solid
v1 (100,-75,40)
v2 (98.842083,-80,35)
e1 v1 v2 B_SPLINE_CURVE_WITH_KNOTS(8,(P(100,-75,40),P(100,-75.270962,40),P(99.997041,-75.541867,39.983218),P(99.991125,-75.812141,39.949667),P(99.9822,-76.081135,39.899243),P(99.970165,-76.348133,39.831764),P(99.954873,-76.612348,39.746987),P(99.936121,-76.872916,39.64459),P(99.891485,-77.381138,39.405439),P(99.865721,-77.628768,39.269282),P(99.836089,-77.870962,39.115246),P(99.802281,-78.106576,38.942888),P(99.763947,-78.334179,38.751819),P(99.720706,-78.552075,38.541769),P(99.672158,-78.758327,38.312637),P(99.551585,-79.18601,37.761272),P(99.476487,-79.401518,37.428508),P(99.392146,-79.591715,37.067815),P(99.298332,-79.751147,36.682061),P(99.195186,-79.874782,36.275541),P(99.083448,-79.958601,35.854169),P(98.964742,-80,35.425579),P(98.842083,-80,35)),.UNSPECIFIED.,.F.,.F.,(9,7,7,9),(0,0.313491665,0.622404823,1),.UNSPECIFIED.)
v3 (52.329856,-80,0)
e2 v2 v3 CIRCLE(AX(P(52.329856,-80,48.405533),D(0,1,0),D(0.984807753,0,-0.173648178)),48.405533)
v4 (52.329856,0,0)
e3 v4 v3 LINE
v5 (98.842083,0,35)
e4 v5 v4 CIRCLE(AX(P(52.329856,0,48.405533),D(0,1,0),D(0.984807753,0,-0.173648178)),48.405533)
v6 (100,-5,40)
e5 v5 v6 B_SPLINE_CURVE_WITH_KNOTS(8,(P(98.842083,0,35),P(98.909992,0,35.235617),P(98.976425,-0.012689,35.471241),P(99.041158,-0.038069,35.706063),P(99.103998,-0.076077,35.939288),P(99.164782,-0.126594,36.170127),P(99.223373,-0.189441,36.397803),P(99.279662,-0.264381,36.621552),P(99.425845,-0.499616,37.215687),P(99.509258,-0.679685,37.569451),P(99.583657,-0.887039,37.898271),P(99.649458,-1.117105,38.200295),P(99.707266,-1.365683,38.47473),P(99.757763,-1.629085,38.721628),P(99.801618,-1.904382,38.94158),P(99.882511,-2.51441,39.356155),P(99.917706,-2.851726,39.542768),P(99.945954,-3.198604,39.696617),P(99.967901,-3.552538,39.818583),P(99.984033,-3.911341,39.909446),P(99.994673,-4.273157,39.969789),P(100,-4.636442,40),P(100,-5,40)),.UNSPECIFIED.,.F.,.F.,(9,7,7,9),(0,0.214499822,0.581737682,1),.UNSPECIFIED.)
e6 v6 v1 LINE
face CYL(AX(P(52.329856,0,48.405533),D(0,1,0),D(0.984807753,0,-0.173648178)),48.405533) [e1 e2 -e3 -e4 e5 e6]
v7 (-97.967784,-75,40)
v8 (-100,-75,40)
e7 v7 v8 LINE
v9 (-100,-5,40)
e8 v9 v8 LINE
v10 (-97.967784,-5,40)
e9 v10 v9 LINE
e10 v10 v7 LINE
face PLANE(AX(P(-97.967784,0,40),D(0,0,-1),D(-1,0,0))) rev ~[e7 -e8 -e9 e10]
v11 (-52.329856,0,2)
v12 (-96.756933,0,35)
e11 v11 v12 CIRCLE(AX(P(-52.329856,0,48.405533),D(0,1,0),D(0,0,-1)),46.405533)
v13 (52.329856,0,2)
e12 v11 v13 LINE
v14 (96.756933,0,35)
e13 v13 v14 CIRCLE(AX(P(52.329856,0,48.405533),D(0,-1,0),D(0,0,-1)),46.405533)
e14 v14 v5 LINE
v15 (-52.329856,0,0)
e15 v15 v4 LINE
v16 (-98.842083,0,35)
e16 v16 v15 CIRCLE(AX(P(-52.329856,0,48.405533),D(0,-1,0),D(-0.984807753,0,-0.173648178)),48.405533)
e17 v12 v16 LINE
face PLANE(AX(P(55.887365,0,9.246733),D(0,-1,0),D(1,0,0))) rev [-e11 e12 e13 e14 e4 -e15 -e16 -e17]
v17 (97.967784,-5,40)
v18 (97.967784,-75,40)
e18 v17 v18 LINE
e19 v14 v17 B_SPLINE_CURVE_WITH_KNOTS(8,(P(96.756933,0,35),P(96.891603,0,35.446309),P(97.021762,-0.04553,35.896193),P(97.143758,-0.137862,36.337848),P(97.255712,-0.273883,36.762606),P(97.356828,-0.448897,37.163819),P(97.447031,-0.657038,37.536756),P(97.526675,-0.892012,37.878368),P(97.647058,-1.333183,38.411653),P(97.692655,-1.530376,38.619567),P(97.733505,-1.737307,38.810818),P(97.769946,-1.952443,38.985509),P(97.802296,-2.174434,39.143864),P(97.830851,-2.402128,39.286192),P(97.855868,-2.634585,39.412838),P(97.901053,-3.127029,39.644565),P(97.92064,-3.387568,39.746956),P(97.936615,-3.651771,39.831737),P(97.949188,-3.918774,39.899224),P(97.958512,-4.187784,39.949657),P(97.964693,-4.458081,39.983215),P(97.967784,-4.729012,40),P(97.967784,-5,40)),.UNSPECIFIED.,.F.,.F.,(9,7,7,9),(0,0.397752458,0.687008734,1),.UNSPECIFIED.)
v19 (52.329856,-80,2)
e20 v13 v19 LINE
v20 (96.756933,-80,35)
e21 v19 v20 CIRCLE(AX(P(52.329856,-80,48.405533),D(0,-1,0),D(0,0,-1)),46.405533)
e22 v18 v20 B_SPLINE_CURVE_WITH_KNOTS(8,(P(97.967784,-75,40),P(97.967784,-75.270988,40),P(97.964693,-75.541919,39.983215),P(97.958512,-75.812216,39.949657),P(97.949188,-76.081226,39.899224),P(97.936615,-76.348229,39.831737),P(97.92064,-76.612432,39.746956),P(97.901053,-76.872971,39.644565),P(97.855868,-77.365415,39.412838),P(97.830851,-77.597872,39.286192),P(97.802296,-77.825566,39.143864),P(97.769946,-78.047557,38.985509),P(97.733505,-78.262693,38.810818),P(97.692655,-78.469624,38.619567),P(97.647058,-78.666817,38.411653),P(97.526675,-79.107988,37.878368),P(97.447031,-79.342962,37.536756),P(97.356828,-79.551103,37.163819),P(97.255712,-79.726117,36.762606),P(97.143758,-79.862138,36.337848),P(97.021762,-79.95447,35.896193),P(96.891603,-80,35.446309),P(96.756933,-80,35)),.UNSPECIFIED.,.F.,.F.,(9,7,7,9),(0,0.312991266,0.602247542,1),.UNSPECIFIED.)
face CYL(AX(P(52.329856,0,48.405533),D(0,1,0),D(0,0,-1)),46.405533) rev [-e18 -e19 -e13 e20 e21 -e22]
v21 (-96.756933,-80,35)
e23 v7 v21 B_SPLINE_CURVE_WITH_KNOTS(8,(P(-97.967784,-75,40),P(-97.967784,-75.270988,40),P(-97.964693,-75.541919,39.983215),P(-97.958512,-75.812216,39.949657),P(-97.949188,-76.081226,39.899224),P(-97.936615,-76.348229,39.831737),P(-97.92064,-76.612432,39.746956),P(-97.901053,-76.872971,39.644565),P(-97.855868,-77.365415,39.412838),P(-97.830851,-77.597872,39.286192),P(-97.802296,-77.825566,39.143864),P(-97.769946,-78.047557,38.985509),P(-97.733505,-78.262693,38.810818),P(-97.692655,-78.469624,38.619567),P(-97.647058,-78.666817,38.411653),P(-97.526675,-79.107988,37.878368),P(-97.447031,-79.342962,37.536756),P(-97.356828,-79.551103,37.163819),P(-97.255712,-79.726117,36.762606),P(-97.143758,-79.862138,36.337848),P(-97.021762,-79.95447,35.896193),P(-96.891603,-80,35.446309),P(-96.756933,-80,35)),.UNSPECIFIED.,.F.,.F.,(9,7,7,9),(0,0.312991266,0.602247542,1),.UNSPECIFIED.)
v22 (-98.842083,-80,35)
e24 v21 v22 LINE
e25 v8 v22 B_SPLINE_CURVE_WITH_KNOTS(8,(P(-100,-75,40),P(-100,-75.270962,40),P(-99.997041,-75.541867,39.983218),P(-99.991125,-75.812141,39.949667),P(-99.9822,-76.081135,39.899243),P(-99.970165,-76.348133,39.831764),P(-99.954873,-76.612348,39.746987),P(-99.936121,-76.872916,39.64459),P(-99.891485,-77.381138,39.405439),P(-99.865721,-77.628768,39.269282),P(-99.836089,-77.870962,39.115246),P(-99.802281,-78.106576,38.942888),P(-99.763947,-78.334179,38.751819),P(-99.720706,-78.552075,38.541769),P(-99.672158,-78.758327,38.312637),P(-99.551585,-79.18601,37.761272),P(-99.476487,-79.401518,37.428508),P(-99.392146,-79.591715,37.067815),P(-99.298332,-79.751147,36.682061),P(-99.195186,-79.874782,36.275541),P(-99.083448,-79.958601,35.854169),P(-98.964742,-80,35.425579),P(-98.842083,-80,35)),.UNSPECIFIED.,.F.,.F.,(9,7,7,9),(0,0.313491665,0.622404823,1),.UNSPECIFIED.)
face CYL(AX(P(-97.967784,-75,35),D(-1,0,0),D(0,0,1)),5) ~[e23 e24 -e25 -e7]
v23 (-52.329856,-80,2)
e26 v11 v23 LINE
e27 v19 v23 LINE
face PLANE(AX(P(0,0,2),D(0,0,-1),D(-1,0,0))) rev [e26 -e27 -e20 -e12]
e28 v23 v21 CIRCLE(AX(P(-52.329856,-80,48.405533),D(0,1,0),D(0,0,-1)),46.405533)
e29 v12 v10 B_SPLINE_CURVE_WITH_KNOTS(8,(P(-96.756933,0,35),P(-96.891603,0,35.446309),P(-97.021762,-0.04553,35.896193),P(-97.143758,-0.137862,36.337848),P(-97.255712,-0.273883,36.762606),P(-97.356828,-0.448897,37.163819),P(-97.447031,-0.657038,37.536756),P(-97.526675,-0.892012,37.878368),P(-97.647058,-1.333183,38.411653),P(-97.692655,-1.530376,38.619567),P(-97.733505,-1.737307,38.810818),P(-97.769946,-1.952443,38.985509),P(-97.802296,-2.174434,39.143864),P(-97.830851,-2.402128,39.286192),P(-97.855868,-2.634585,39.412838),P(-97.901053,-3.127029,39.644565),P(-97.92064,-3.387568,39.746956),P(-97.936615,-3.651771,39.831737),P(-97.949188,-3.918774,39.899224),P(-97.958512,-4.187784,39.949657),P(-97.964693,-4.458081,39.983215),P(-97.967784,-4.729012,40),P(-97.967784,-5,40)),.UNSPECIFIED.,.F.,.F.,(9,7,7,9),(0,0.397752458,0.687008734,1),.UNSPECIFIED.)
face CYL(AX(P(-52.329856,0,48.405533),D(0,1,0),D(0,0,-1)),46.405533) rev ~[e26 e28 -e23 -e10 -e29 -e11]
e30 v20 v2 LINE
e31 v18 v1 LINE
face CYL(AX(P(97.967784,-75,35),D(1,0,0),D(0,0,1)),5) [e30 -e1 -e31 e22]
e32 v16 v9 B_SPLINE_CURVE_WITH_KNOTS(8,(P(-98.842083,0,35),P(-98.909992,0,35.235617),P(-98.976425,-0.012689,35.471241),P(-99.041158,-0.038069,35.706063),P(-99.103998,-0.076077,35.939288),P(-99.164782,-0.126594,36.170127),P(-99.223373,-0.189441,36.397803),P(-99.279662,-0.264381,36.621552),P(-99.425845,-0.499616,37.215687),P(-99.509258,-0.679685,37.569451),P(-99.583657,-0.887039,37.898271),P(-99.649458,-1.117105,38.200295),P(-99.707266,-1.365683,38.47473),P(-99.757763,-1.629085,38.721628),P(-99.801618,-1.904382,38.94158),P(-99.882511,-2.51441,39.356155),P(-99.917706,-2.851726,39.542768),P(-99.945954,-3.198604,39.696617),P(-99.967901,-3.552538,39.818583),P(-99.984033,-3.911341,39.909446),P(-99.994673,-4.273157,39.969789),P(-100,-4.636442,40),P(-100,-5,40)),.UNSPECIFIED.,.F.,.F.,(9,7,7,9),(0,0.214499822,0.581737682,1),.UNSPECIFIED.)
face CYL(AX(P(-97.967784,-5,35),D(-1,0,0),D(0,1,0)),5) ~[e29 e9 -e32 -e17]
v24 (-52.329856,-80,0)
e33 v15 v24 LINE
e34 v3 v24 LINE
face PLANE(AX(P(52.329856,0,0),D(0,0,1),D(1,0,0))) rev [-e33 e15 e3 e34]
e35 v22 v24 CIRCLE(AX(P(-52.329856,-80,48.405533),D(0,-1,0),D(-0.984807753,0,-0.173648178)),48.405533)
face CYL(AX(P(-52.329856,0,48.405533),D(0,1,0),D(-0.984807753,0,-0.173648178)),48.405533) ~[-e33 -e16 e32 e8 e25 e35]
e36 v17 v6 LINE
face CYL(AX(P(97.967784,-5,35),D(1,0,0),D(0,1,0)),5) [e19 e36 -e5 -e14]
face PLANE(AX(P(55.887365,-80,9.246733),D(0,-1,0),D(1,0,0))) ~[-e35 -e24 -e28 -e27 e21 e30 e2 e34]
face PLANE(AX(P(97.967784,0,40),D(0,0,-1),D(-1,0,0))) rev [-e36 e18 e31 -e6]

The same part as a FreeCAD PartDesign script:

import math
import FreeCAD as App
import Part
import Sketcher

V = App.Vector
Q = App.Units.Quantity


def edges_at(feature, points):
    """Names of the edges that pass closest to the given points."""
    edges = feature.Shape.Edges
    near = lambda p: min(range(len(edges)), key=lambda i: edges[i].distToShape(Part.Vertex(*p))[0])
    return sorted({f"Edge{near(p) + 1}" for p in points})

doc = App.newDocument("Part")
params = doc.addObject("Spreadsheet::Sheet", "Params")
for row, (alias, value) in enumerate([
    ("sketch1_height", "2 mm"),
    ("pad1_length", "80 mm"),
    ("fillet_radius", "5 mm"),
], start=1):
    params.set(f"A{row}", alias)
    params.set(f"B{row}", "=" + value)
    params.setAlias(f"B{row}", alias)

body = doc.addObject("PartDesign::Body", "Body")

# Sketch on XZ plane
sketch1 = body.newObject("Sketcher::SketchObject", "Sketch")
sketch1.AttachmentSupport = (doc.getObject("XZ_Plane"), [""])
sketch1.MapMode = "FlatFace"
sketch1.addGeometry([
    Part.LineSegment(V(-52.329856, 0, 0), V(0, 0, 0)),  # 0
    Part.LineSegment(V(0, 0, 0), V(0, 2, 0)),  # 1
    Part.LineSegment(V(0, 2, 0), V(-52.329856, 2, 0)),  # 2
    Part.ArcOfCircle(Part.Circle(V(-52.329856, 48.405533, 0), V(0, 0, 1), 46.405533), math.radians(-169.56429), math.radians(-90)),  # 3
    Part.LineSegment(V(-97.967784, 40, 0), V(-100, 40, 0)),  # 4
    Part.ArcOfCircle(Part.Circle(V(-52.329856, 48.405533, 0), V(0, 0, 1), 48.405533), math.radians(-170), math.radians(-90)),  # 5
], False)
sketch1.addConstraint([
    Sketcher.Constraint("Coincident", 0, 2, 1, 1),
    Sketcher.Constraint("Coincident", 1, 2, 2, 1),
    Sketcher.Constraint("Tangent", 2, 2, 3, 2),
    Sketcher.Constraint("Coincident", 3, 1, 4, 1),
    Sketcher.Constraint("Coincident", 4, 2, 5, 1),
    Sketcher.Constraint("Tangent", 5, 2, 0, 1),
    Sketcher.Constraint("Horizontal", 0),
    Sketcher.Constraint("Vertical", 1),
    Sketcher.Constraint("Horizontal", 2),
    Sketcher.Constraint("Horizontal", 4),
    Sketcher.Constraint("Coincident", 0, 2, -1, 1),
    Sketcher.Constraint("Coincident", 5, 3, 3, 3),
    Sketcher.Constraint("DistanceY", 1, 1, 1, 2, Q("2 mm")),
    Sketcher.Constraint("DistanceY", -1, 1, 3, 1, Q("40 mm")),
    Sketcher.Constraint("DistanceX", 4, 2, -1, 1, Q("100 mm")),
    Sketcher.Constraint("Radius", 3, Q("46.405533 mm")),
])
sketch1.setExpression("Constraints[12]", "Params.sketch1_height")
pad1 = body.newObject("PartDesign::Pad", "Pad")
pad1.Profile = sketch1
pad1.setExpression("Length", "Params.pad1_length")
body2 = doc.addObject("PartDesign::Body", "Body001")
doc.recompute()

body2.BaseFeature = body
doc.recompute()

mirroring = doc.addObject("Part::Mirroring", "Mirroring")
mirroring.Source = body
mirroring.Base = V(0, -40, 1)
mirroring.Normal = V(1, 0, 0)
body3 = doc.addObject("PartDesign::Body", "Body002")
body3.BaseFeature = mirroring
boolean = body2.newObject("PartDesign::Boolean", "Boolean")
boolean.Type = "Fuse"
boolean.addObjects([body3])
doc.recompute()

fillet = body2.newObject("PartDesign::Fillet", "Fillet")
fillet.Base = (boolean, edges_at(boolean, [
    (-98.984, -80, 40),
    (-98.984, 0, 40),
    (98.984, -80, 40),
    (98.984, 0, 40),
]))
fillet.setExpression("Radius", "Params.fillet_radius")
mirroring.Visibility = False

doc.recompute()
